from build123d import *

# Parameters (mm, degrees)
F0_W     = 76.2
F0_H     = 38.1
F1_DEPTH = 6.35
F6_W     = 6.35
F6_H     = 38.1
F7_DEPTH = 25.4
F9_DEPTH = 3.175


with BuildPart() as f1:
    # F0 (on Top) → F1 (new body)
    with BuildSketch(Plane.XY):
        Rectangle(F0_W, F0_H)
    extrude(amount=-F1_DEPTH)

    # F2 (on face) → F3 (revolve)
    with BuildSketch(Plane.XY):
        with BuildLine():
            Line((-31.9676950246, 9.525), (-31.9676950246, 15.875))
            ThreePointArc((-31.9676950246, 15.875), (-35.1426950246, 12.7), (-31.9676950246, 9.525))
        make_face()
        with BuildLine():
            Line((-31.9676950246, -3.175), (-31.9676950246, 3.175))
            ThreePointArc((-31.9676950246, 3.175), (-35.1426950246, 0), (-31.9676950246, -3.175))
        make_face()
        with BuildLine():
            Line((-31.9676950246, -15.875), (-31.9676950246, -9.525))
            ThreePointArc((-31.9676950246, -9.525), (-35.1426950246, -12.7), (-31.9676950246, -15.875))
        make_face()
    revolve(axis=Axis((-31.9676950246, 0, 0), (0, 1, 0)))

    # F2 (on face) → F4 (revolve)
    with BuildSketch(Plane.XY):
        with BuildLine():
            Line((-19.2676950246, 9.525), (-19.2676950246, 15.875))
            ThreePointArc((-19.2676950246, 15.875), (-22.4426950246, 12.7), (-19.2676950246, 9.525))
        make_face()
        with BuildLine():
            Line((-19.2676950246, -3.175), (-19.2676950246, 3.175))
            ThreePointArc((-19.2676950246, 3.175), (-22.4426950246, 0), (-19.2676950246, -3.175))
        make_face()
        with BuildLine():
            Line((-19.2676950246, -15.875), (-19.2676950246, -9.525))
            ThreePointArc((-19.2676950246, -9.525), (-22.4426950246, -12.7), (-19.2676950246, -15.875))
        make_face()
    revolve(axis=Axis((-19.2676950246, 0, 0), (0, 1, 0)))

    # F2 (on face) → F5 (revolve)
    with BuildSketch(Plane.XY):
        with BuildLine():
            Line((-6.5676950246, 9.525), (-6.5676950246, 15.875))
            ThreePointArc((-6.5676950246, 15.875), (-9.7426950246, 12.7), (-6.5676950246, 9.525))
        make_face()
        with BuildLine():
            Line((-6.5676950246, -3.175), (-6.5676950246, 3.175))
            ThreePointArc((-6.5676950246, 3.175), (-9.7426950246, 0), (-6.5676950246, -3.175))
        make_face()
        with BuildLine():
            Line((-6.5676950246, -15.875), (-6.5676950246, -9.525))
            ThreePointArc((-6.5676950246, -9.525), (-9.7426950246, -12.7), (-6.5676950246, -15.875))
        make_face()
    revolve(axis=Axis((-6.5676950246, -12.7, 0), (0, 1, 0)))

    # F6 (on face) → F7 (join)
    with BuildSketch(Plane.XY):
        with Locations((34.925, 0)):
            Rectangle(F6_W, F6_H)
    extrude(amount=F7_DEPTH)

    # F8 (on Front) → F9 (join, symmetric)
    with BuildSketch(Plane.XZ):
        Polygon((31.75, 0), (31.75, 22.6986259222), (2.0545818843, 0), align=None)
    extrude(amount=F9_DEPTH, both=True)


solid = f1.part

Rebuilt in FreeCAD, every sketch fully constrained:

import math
import FreeCAD as App
import Part
import Sketcher
from FreeCAD import Vector
Q = App.Units.Quantity

doc = App.newDocument("Part")
body = doc.addObject("PartDesign::Body", "Body")

sketch1 = body.newObject("Sketcher::SketchObject", "Sketch")
sketch1.AttachmentSupport = (doc.getObject("XY_Plane"), [""])
sketch1.MapMode = "FlatFace"
sketch1.addGeometry([
    Part.LineSegment(Vector(-38, 19, 0), Vector(-38, -19, 0)),
    Part.LineSegment(Vector(-38, -19, 0), Vector(38, -19, 0)),
    Part.LineSegment(Vector(38, -19, 0), Vector(38, 19, 0)),
    Part.LineSegment(Vector(38, 19, 0), Vector(-38, 19, 0)),
], False)
sketch1.addConstraint([
    Sketcher.Constraint("Coincident", 0, 2, 1, 1),
    Sketcher.Constraint("Coincident", 1, 2, 2, 1),
    Sketcher.Constraint("Coincident", 2, 2, 3, 1),
    Sketcher.Constraint("Coincident", 3, 2, 0, 1),
    Sketcher.Constraint("Vertical", 0),
    Sketcher.Constraint("Horizontal", 1),
    Sketcher.Constraint("Vertical", 2),
    Sketcher.Constraint("Horizontal", 3),
    Sketcher.Constraint("Symmetric", 0, 2, 2, 2, -1, 1),
    Sketcher.Constraint("DistanceX", 1, 1, 1, 2, Q("3 in")),
    Sketcher.Constraint("DistanceY", 0, 2, 0, 1, Q("1.5 in")),
])
pad1 = body.newObject("PartDesign::Pad", "Pad")
pad1.Profile = sketch1
pad1.Length = Q("0.25 in")
pad1.Reversed = True

sketch2 = body.newObject("Sketcher::SketchObject", "Sketch001")
sketch2.AttachmentSupport = (doc.getObject("XY_Plane"), [""])
sketch2.MapMode = "FlatFace"
sketch2.addGeometry([
    Part.LineSegment(Vector(-32, 9.5, 0), Vector(-32, 15.9, 0)),
    Part.ArcOfCircle(Part.Circle(Vector(-32, 12.7, 0), Vector(0, 0, 1), 3.2), math.radians(90), math.radians(270)),
    Part.LineSegment(Vector(-32, -3.2, 0), Vector(-32, 3.2, 0)),
    Part.ArcOfCircle(Part.Circle(Vector(-32, 0, 0), Vector(0, 0, 1), 3.2), math.radians(90), math.radians(270)),
    Part.LineSegment(Vector(-32, -15.9, 0), Vector(-32, -9.5, 0)),
    Part.ArcOfCircle(Part.Circle(Vector(-32, -12.7, 0), Vector(0, 0, 1), 3.2), math.radians(90), math.radians(270)),
], False)
sketch2.addGeometry(Part.LineSegment(Vector(-32, -15.9, 0), Vector(-32, 15.9, 0)), True)
sketch2.addConstraint([
    Sketcher.Constraint("Coincident", 0, 1, 1, 2),
    Sketcher.Constraint("Coincident", 1, 1, 0, 2),
    Sketcher.Constraint("Coincident", 2, 1, 3, 2),
    Sketcher.Constraint("Coincident", 3, 1, 2, 2),
    Sketcher.Constraint("Coincident", 4, 1, 5, 2),
    Sketcher.Constraint("Coincident", 5, 1, 4, 2),
    Sketcher.Constraint("Vertical", 0),
    Sketcher.Constraint("Vertical", 2),
    Sketcher.Constraint("Vertical", 4),
    Sketcher.Constraint("Vertical", 6),
    Sketcher.Constraint("Coincident", 6, 1, 4, 1),
    Sketcher.Constraint("Coincident", 6, 2, 1, 1),
    Sketcher.Constraint("Equal", 1, 3),
    Sketcher.Constraint("Equal", 3, 5),
    Sketcher.Constraint("Symmetric", 1, 3, 5, 3, -1),
    Sketcher.Constraint("PointOnObject", 3, 3, -1),
    Sketcher.Constraint("Vertical", 1, 3, 3, 3),
    Sketcher.Constraint("Vertical", 5, 3, 0, 1),
    Sketcher.Constraint("Vertical", 1, 1, 2, 1),
    Sketcher.Constraint("Radius", 1, Q("0.125 in")),
    Sketcher.Constraint("DistanceY", 5, 3, 1, 3, Q("1 in")),
    Sketcher.Constraint("DistanceX", 1, 3, -1, 1, 31.967695),
])
revolution = body.newObject("PartDesign::Revolution", "Revolution")
revolution.Profile = sketch2
revolution.ReferenceAxis = (sketch2, ["Axis0"])
revolution.Angle = 360

sketch3 = body.newObject("Sketcher::SketchObject", "Sketch002")
sketch3.AttachmentSupport = (doc.getObject("XY_Plane"), [""])
sketch3.MapMode = "FlatFace"
sketch3.addGeometry([
    Part.LineSegment(Vector(-19.3, 9.5, 0), Vector(-19.3, 15.9, 0)),
    Part.ArcOfCircle(Part.Circle(Vector(-19.3, 12.7, 0), Vector(0, 0, 1), 3.2), math.radians(90), math.radians(270)),
    Part.LineSegment(Vector(-19.3, -3.2, 0), Vector(-19.3, 3.2, 0)),
    Part.ArcOfCircle(Part.Circle(Vector(-19.3, 0, 0), Vector(0, 0, 1), 3.2), math.radians(90), math.radians(270)),
    Part.LineSegment(Vector(-19.3, -15.9, 0), Vector(-19.3, -9.5, 0)),
    Part.ArcOfCircle(Part.Circle(Vector(-19.3, -12.7, 0), Vector(0, 0, 1), 3.2), math.radians(90), math.radians(270)),
], False)
sketch3.addGeometry(Part.LineSegment(Vector(-19.3, -15.9, 0), Vector(-19.3, 15.9, 0)), True)
sketch3.addConstraint([
    Sketcher.Constraint("Coincident", 0, 1, 1, 2),
    Sketcher.Constraint("Coincident", 1, 1, 0, 2),
    Sketcher.Constraint("Coincident", 2, 1, 3, 2),
    Sketcher.Constraint("Coincident", 3, 1, 2, 2),
    Sketcher.Constraint("Coincident", 4, 1, 5, 2),
    Sketcher.Constraint("Coincident", 5, 1, 4, 2),
    Sketcher.Constraint("Vertical", 0),
    Sketcher.Constraint("Vertical", 2),
    Sketcher.Constraint("Vertical", 4),
    Sketcher.Constraint("Vertical", 6),
    Sketcher.Constraint("Coincident", 6, 1, 4, 1),
    Sketcher.Constraint("Coincident", 6, 2, 1, 1),
    Sketcher.Constraint("Equal", 1, 3),
    Sketcher.Constraint("Equal", 3, 5),
    Sketcher.Constraint("Symmetric", 1, 3, 5, 3, -1),
    Sketcher.Constraint("PointOnObject", 3, 3, -1),
    Sketcher.Constraint("Vertical", 1, 3, 3, 3),
    Sketcher.Constraint("Vertical", 5, 3, 0, 1),
    Sketcher.Constraint("Vertical", 1, 1, 2, 1),
    Sketcher.Constraint("Radius", 1, Q("0.125 in")),
    Sketcher.Constraint("DistanceY", 5, 3, 1, 3, Q("1 in")),
    Sketcher.Constraint("DistanceX", 1, 3, -1, 1, 19.267695),
])
revolution2 = body.newObject("PartDesign::Revolution", "Revolution001")
revolution2.Profile = sketch3
revolution2.ReferenceAxis = (sketch3, ["Axis0"])
revolution2.Angle = 360

sketch4 = body.newObject("Sketcher::SketchObject", "Sketch003")
sketch4.AttachmentSupport = (doc.getObject("XY_Plane"), [""])
sketch4.MapMode = "FlatFace"
sketch4.addGeometry([
    Part.LineSegment(Vector(-6.6, 9.5, 0), Vector(-6.6, 15.9, 0)),
    Part.ArcOfCircle(Part.Circle(Vector(-6.6, 12.7, 0), Vector(0, 0, 1), 3.2), math.radians(90), math.radians(270)),
    Part.LineSegment(Vector(-6.6, -3.2, 0), Vector(-6.6, 3.2, 0)),
    Part.ArcOfCircle(Part.Circle(Vector(-6.6, 0, 0), Vector(0, 0, 1), 3.2), math.radians(90), math.radians(270)),
    Part.LineSegment(Vector(-6.6, -15.9, 0), Vector(-6.6, -9.5, 0)),
    Part.ArcOfCircle(Part.Circle(Vector(-6.6, -12.7, 0), Vector(0, 0, 1), 3.2), math.radians(90), math.radians(270)),
], False)
sketch4.addGeometry(Part.LineSegment(Vector(-6.6, -15.9, 0), Vector(-6.6, 15.9, 0)), True)
sketch4.addConstraint([
    Sketcher.Constraint("Coincident", 0, 1, 1, 2),
    Sketcher.Constraint("Coincident", 1, 1, 0, 2),
    Sketcher.Constraint("Coincident", 2, 1, 3, 2),
    Sketcher.Constraint("Coincident", 3, 1, 2, 2),
    Sketcher.Constraint("Coincident", 4, 1, 5, 2),
    Sketcher.Constraint("Coincident", 5, 1, 4, 2),
    Sketcher.Constraint("Vertical", 0),
    Sketcher.Constraint("Vertical", 2),
    Sketcher.Constraint("Vertical", 4),
    Sketcher.Constraint("Vertical", 6),
    Sketcher.Constraint("Coincident", 6, 1, 4, 1),
    Sketcher.Constraint("Coincident", 6, 2, 1, 1),
    Sketcher.Constraint("Equal", 1, 3),
    Sketcher.Constraint("Equal", 3, 5),
    Sketcher.Constraint("Symmetric", 1, 3, 5, 3, -1),
    Sketcher.Constraint("PointOnObject", 3, 3, -1),
    Sketcher.Constraint("Vertical", 1, 3, 3, 3),
    Sketcher.Constraint("Vertical", 5, 3, 0, 1),
    Sketcher.Constraint("Vertical", 1, 1, 2, 1),
    Sketcher.Constraint("Radius", 1, Q("0.125 in")),
    Sketcher.Constraint("DistanceY", 5, 3, 1, 3, Q("1 in")),
    Sketcher.Constraint("DistanceX", 1, 3, -1, 1, 6.567695),
])
revolution3 = body.newObject("PartDesign::Revolution", "Revolution002")
revolution3.Profile = sketch4
revolution3.ReferenceAxis = (sketch4, ["Axis0"])
revolution3.Angle = 360

sketch5 = body.newObject("Sketcher::SketchObject", "Sketch004")
sketch5.AttachmentSupport = (doc.getObject("XY_Plane"), [""])
sketch5.MapMode = "FlatFace"
sketch5.addGeometry([
    Part.LineSegment(Vector(32, 19, 0), Vector(32, -19, 0)),
    Part.LineSegment(Vector(32, -19, 0), Vector(38, -19, 0)),
    Part.LineSegment(Vector(38, -19, 0), Vector(38, 19, 0)),
    Part.LineSegment(Vector(38, 19, 0), Vector(32, 19, 0)),
], False)
sketch5.addConstraint([
    Sketcher.Constraint("Coincident", 0, 2, 1, 1),
    Sketcher.Constraint("Coincident", 1, 2, 2, 1),
    Sketcher.Constraint("Coincident", 2, 2, 3, 1),
    Sketcher.Constraint("Coincident", 3, 2, 0, 1),
    Sketcher.Constraint("Vertical", 0),
    Sketcher.Constraint("Horizontal", 1),
    Sketcher.Constraint("Vertical", 2),
    Sketcher.Constraint("Horizontal", 3),
    Sketcher.Constraint("DistanceY", 0, 2, 0, 1, Q("1.5 in")),
    Sketcher.Constraint("DistanceX", 1, 1, 1, 2, Q("0.25 in")),
    Sketcher.Constraint("DistanceX", -1, 1, 1, 2, Q("1.5 in")),
    Sketcher.Constraint("DistanceY", 0, 2, -1, 1, Q("0.75 in")),
])
pad2 = body.newObject("PartDesign::Pad", "Pad001")
pad2.Profile = sketch5
pad2.Length = Q("1 in")

sketch6 = body.newObject("Sketcher::SketchObject", "Sketch005")
sketch6.AttachmentSupport = (doc.getObject("XZ_Plane"), [""])
sketch6.MapMode = "FlatFace"
sketch6.addGeometry([
    Part.LineSegment(Vector(32, 0, 0), Vector(32, 23, 0)),
    Part.LineSegment(Vector(32, 23, 0), Vector(2, 0, 0)),
    Part.LineSegment(Vector(2, 0, 0), Vector(32, 0, 0)),
], False)
sketch6.addConstraint([
    Sketcher.Constraint("Coincident", 0, 2, 1, 1),
    Sketcher.Constraint("Coincident", 1, 2, 2, 1),
    Sketcher.Constraint("Coincident", 2, 2, 0, 1),
    Sketcher.Constraint("Vertical", 0),
    Sketcher.Constraint("Horizontal", 2),
    Sketcher.Constraint("PointOnObject", 1, 2, -1),
    Sketcher.Constraint("DistanceX", -1, 1, 0, 2, Q("1.25 in")),
    Sketcher.Constraint("DistanceX", 2, 1, 2, 2, 29.695418),
    Sketcher.Constraint("Distance", 1, 37.377072),
])
pad3 = body.newObject("PartDesign::Pad", "Pad002")
pad3.Profile = sketch6
pad3.Length = Q("0.25 in")
pad3.Midplane = True

doc.recompute()
